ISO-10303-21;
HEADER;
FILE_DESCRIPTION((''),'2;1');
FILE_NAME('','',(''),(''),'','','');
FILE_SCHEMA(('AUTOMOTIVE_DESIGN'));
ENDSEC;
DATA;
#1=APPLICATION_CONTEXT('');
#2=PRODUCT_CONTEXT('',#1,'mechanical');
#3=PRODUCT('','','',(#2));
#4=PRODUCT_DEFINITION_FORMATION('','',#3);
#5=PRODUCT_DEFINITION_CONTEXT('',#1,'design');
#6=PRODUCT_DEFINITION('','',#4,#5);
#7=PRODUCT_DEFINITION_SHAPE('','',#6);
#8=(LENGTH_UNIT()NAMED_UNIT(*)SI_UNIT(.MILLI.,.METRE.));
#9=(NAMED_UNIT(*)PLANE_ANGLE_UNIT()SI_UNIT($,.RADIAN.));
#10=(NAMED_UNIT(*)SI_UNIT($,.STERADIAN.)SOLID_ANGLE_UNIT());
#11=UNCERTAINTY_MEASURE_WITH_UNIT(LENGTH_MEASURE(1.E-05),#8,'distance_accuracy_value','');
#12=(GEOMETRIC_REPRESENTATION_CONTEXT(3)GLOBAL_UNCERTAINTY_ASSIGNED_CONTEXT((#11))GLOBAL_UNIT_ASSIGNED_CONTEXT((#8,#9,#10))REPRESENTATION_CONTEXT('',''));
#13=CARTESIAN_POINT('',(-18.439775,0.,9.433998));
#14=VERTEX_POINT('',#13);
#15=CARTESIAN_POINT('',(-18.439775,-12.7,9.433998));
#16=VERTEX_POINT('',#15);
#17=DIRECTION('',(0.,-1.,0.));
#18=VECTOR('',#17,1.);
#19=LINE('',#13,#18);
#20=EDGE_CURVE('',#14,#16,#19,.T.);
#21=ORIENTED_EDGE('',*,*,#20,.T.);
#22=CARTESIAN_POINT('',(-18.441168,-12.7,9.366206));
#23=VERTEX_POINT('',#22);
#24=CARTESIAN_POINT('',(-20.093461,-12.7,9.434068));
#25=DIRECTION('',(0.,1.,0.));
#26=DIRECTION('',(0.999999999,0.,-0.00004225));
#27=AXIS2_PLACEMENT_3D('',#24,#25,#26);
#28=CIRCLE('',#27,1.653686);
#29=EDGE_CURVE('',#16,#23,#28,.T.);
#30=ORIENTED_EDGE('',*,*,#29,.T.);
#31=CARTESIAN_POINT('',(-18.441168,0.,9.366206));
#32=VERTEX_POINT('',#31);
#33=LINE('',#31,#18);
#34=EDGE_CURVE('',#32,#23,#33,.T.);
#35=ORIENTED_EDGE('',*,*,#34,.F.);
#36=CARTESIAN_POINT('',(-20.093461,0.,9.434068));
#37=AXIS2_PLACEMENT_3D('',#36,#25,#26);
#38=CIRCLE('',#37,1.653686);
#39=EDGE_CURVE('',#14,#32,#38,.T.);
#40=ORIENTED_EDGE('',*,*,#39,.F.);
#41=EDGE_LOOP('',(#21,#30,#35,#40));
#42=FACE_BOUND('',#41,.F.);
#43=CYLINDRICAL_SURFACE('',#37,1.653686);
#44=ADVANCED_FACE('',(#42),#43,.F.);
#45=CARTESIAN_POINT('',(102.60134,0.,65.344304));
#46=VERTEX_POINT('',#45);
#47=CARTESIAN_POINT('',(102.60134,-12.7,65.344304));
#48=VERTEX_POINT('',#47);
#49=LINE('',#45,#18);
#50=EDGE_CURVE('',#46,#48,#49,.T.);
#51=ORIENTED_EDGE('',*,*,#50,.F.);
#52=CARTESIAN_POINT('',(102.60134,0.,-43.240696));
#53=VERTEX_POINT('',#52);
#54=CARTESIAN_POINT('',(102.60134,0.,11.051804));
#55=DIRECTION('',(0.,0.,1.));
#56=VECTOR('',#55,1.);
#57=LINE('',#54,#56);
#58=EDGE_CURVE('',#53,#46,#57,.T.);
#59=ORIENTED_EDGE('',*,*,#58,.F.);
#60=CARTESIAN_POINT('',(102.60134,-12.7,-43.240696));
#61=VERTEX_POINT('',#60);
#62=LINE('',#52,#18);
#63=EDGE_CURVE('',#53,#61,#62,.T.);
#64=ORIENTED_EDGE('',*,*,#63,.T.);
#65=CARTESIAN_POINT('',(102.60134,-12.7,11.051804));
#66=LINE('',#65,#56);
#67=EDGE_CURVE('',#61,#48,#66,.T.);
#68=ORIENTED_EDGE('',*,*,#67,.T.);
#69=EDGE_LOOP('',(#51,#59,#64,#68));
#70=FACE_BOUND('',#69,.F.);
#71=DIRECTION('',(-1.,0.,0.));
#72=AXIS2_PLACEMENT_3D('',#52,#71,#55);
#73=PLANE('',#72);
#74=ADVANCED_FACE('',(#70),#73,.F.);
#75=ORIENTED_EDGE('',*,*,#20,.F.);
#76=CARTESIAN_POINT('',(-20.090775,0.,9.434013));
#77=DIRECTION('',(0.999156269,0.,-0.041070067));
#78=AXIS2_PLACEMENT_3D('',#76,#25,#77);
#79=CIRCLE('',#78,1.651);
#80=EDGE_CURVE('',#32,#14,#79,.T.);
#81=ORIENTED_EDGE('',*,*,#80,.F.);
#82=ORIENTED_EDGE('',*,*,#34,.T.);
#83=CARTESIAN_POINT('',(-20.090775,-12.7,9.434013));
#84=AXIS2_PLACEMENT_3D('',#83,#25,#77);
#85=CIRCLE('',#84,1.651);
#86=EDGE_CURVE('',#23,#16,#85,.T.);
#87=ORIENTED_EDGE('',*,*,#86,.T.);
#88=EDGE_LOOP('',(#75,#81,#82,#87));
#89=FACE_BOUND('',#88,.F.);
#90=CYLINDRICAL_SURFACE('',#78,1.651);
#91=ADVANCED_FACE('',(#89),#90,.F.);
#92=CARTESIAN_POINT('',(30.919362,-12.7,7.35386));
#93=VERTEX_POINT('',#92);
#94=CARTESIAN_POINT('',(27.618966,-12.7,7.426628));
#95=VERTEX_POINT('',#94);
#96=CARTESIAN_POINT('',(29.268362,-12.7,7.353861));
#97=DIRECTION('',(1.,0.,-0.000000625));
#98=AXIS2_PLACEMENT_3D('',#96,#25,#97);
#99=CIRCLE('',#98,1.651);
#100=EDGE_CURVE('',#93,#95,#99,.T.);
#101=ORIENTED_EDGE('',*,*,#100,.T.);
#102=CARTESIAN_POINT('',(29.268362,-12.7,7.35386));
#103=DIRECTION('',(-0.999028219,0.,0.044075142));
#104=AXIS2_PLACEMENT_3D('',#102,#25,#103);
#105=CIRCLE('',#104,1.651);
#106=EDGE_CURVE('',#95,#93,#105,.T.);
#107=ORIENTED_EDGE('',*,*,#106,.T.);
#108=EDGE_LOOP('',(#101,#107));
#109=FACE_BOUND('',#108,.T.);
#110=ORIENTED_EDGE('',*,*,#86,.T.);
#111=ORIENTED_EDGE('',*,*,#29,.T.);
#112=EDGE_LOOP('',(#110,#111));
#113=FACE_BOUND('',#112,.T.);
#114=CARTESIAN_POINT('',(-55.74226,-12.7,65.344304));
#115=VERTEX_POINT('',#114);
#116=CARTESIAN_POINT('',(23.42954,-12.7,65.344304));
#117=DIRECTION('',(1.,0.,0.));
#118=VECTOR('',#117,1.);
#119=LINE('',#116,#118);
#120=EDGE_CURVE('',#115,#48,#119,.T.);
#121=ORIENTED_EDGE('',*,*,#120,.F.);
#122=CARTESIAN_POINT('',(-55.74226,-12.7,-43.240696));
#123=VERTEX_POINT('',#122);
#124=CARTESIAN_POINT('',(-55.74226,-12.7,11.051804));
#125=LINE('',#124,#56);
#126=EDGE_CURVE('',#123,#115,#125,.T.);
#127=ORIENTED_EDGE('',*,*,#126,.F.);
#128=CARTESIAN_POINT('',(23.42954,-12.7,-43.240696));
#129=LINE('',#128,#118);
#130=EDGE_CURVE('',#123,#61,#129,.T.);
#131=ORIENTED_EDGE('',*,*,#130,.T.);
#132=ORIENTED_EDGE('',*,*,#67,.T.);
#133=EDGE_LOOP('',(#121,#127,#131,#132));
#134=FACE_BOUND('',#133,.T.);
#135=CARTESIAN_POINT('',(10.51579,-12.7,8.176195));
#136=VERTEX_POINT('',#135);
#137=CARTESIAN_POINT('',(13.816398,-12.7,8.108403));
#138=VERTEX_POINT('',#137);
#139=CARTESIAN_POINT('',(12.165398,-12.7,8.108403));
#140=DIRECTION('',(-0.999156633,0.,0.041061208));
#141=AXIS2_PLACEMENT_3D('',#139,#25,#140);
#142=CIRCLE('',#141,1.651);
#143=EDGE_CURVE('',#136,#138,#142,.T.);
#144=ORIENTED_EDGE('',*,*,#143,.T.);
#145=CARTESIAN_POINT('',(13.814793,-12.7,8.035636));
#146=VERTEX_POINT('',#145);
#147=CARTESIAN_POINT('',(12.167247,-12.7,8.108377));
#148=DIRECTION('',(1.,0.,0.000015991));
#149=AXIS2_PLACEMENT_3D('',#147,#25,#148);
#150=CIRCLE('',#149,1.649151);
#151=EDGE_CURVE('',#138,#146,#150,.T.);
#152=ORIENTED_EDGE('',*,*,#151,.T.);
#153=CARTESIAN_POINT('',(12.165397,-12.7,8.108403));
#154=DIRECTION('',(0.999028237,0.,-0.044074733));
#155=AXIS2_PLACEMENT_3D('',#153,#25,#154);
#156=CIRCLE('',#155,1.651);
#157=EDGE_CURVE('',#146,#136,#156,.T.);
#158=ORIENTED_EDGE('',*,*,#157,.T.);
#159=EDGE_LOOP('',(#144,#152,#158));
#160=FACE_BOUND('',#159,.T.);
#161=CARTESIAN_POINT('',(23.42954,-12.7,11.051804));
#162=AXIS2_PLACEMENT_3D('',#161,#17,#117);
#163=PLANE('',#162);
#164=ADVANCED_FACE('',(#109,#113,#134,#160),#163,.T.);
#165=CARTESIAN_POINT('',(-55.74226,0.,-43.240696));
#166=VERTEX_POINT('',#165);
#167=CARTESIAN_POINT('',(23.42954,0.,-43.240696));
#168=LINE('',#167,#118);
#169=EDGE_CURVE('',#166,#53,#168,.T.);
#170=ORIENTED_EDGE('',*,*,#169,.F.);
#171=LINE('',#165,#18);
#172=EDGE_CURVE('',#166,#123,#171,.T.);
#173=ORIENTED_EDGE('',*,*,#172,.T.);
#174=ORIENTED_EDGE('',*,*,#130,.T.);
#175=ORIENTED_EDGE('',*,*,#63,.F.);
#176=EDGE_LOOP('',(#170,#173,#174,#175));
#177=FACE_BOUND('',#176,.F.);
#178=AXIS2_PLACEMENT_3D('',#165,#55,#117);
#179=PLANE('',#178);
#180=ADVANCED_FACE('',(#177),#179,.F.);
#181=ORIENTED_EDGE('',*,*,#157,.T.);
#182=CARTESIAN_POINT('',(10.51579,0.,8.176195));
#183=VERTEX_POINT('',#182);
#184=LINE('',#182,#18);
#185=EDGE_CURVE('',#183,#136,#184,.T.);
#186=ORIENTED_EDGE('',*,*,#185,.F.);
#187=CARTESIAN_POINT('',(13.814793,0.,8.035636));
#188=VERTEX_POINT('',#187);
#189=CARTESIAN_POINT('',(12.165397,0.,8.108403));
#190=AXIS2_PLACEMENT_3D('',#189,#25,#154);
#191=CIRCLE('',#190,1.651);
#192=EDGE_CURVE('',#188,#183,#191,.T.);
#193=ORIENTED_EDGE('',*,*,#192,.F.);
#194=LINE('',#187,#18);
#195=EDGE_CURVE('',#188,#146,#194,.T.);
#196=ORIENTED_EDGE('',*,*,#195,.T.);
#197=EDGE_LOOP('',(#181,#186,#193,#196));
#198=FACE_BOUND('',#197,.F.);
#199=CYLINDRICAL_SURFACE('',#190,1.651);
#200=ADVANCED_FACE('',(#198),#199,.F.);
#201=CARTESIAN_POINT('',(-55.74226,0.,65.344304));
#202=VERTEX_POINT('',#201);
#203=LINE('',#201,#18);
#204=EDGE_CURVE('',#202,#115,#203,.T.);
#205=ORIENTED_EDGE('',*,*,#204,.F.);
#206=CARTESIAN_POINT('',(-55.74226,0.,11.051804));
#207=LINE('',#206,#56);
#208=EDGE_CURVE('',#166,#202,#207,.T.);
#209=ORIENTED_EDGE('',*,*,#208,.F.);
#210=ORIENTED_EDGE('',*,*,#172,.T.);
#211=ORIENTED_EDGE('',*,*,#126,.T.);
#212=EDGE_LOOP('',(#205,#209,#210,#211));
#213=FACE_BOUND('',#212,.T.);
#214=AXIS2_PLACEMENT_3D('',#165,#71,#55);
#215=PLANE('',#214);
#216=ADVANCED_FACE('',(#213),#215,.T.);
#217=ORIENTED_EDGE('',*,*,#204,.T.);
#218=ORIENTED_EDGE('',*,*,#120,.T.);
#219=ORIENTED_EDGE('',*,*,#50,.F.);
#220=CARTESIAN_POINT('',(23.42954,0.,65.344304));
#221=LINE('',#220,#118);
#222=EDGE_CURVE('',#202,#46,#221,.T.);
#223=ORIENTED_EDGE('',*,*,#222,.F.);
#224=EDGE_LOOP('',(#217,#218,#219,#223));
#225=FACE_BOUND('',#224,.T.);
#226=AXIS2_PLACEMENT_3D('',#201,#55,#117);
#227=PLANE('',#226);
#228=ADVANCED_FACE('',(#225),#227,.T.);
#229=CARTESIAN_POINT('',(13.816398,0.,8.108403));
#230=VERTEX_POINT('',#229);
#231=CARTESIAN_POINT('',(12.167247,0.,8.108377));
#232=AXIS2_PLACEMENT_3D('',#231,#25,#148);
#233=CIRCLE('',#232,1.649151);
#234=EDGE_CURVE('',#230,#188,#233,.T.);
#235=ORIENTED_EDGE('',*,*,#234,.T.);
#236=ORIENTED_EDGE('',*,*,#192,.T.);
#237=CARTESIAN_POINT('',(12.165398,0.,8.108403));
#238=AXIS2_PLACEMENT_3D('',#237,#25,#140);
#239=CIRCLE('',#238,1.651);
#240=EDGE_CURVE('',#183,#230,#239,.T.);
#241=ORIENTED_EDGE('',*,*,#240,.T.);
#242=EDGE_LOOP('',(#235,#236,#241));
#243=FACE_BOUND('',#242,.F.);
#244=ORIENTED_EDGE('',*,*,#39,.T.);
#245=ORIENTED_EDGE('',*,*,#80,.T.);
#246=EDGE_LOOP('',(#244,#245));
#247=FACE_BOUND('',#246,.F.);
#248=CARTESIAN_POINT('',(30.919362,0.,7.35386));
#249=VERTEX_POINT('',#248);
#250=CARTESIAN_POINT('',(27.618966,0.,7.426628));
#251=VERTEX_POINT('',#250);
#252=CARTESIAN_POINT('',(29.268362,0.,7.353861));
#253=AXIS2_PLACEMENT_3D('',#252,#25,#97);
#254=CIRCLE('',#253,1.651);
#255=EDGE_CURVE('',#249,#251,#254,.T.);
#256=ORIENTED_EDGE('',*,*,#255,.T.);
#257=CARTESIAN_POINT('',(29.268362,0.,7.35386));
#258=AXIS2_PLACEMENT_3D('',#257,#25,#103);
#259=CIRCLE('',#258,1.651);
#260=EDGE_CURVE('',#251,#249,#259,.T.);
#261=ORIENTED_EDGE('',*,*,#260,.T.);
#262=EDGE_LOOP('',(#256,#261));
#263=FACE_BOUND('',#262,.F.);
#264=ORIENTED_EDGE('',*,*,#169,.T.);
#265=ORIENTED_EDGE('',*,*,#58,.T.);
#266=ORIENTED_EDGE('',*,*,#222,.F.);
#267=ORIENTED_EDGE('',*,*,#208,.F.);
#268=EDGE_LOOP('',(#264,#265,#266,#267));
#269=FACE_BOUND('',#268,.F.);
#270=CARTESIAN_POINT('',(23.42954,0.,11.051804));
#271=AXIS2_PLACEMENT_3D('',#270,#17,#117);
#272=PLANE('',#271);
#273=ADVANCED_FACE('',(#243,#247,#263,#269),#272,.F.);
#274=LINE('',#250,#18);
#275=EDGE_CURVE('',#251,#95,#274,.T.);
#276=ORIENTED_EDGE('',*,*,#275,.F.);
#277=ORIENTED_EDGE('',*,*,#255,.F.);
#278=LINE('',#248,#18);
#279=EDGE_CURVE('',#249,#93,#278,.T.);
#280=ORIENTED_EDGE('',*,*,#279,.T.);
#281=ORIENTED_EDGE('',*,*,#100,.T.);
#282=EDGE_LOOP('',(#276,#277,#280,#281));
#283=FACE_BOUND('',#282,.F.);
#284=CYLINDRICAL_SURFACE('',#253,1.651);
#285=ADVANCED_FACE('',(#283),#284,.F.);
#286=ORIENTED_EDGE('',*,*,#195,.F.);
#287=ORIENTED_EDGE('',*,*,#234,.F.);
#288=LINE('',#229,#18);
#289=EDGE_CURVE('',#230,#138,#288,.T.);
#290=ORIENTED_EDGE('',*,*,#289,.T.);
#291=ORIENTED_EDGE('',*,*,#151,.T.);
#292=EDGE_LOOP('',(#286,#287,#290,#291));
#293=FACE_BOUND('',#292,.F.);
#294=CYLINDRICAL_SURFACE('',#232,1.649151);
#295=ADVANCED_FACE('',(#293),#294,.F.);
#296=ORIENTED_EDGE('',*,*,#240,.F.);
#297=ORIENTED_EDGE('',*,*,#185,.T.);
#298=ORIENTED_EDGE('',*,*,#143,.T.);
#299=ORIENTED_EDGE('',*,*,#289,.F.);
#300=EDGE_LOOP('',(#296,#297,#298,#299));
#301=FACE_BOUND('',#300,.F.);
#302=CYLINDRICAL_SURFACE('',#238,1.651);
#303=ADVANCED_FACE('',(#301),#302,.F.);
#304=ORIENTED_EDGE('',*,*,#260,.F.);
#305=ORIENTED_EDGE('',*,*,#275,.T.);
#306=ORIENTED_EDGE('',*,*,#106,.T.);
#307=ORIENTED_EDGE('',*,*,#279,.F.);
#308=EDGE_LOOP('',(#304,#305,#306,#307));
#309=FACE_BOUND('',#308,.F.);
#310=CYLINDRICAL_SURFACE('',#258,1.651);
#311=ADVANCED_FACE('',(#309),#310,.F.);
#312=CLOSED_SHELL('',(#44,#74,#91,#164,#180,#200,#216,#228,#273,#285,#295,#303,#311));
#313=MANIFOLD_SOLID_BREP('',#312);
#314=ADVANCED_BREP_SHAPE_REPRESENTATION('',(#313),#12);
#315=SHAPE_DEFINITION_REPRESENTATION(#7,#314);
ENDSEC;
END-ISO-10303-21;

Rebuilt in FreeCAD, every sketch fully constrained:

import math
import FreeCAD as App
import Part
import Sketcher

V = App.Vector
Q = App.Units.Quantity

doc = App.newDocument("Part")
body = doc.addObject("PartDesign::Body", "Body")

sketch1 = doc.addObject("Sketcher::SketchObject", "Sketch")
body.addObject(sketch1)
sketch1.AttachmentSupport = (doc.XZ_Plane, [""])
sketch1.MapMode = "FlatFace"
sketch1.addGeometry(Part.LineSegment(V(-55.74226, 65.344304, 0), V(-55.74226, -43.240696, 0)), False)
sketch1.addGeometry(Part.LineSegment(V(-55.74226, -43.240696, 0), V(102.60134, -43.240696, 0)), False)
sketch1.addGeometry(Part.LineSegment(V(102.60134, -43.240696, 0), V(102.60134, 65.344304, 0)), False)
sketch1.addGeometry(Part.LineSegment(V(102.60134, 65.344304, 0), V(-55.74226, 65.344304, 0)), False)
sketch1.addGeometry(Part.ArcOfCircle(Part.Circle(V(12.167247, 8.108377, 0), V(0, 0, 1), 1.649151), math.radians(-2.528018), math.radians(0.000916)), False)
sketch1.addGeometry(Part.ArcOfCircle(Part.Circle(V(12.165397, 8.108403, 0), V(0, 0, 1), 1.651), math.radians(177.646719), math.radians(357.473885)), False)
sketch1.addGeometry(Part.ArcOfCircle(Part.Circle(V(12.165398, 8.108403, 0), V(0, 0, 1), 1.651), math.radians(0.000002), math.radians(177.646704)), False)
sketch1.addGeometry(Part.ArcOfCircle(Part.Circle(V(29.268362, 7.35386, 0), V(0, 0, 1), 1.651), math.radians(0.000002), math.radians(177.473862)), False)
sketch1.addGeometry(Part.ArcOfCircle(Part.Circle(V(29.268362, 7.353861, 0), V(0, 0, 1), 1.651), math.radians(177.4739), math.radians(359.999964)), False)
sketch1.addGeometry(Part.ArcOfCircle(Part.Circle(V(-20.093461, 9.434068, 0), V(0, 0, 1), 1.653686), math.radians(-2.351892), math.radians(-0.002421)), False)
sketch1.addGeometry(Part.ArcOfCircle(Part.Circle(V(-20.090775, 9.434013, 0), V(0, 0, 1), 1.651), math.radians(-0.000509), math.radians(357.646196)), False)
sketch1.addConstraint(Sketcher.Constraint("Coincident", 0, 2, 1, 1))
sketch1.addConstraint(Sketcher.Constraint("Coincident", 1, 2, 2, 1))
sketch1.addConstraint(Sketcher.Constraint("Coincident", 2, 2, 3, 1))
sketch1.addConstraint(Sketcher.Constraint("Coincident", 3, 2, 0, 1))
sketch1.addConstraint(Sketcher.Constraint("Coincident", 4, 1, 5, 2))
sketch1.addConstraint(Sketcher.Constraint("Tangent", 5, 1, 6, 2))
sketch1.addConstraint(Sketcher.Constraint("Coincident", 6, 1, 4, 2))
sketch1.addConstraint(Sketcher.Constraint("Tangent", 7, 1, 8, 2))
sketch1.addConstraint(Sketcher.Constraint("Coincident", 8, 1, 7, 2))
sketch1.addConstraint(Sketcher.Constraint("Coincident", 9, 1, 10, 2))
sketch1.addConstraint(Sketcher.Constraint("Coincident", 10, 1, 9, 2))
sketch1.addConstraint(Sketcher.Constraint("Vertical", 0))
sketch1.addConstraint(Sketcher.Constraint("Horizontal", 1))
sketch1.addConstraint(Sketcher.Constraint("Vertical", 2))
sketch1.addConstraint(Sketcher.Constraint("Horizontal", 3))
sketch1.addConstraint(Sketcher.Constraint("Equal", 5, 6))
sketch1.addConstraint(Sketcher.Constraint("Equal", 6, 7))
sketch1.addConstraint(Sketcher.Constraint("Equal", 8, 10))
sketch1.addConstraint(Sketcher.Constraint("Horizontal", 5, 3, 6, 1))
sketch1.addConstraint(Sketcher.Constraint("Horizontal", 8, 3, 7, 1))
sketch1.addConstraint(Sketcher.Constraint("Radius", 5, Q("0.065 in")))
sketch1.addConstraint(Sketcher.Constraint("DistanceX", 1, 1, 1, 2, Q("6.234 in")))
sketch1.addConstraint(Sketcher.Constraint("DistanceY", 0, 2, 0, 1, Q("4.275 in")))
sketch1.addConstraint(Sketcher.Constraint("Radius", 4, Q("1.649151 mm")))
sketch1.addConstraint(Sketcher.Constraint("Radius", 9, Q("1.653686 mm")))
sketch1.addConstraint(Sketcher.Constraint("DistanceY", -1, 1, 10, 1, Q("9.433998 mm")))
sketch1.addConstraint(Sketcher.Constraint("DistanceX", 0, 2, 9, 3, Q("35.648799 mm")))
sketch1.addConstraint(Sketcher.Constraint("DistanceY", 0, 2, 6, 3, Q("51.349099 mm")))
sketch1.addConstraint(Sketcher.Constraint("DistanceX", -1, 1, 7, 3, Q("29.268362 mm")))
sketch1.addConstraint(Sketcher.Constraint("DistanceY", -1, 1, 7, 3, Q("7.35386 mm")))
sketch1.addConstraint(Sketcher.Constraint("DistanceX", 9, 3, -1, 1, Q("20.093461 mm")))
sketch1.addConstraint(Sketcher.Constraint("DistanceX", -1, 1, 5, 1, Q("10.51579 mm")))
sketch1.addConstraint(Sketcher.Constraint("DistanceX", 9, 1, -1, 1, Q("18.441168 mm")))
sketch1.addConstraint(Sketcher.Constraint("DistanceY", 8, 3, 6, 3, Q("0.754542 mm")))
sketch1.addConstraint(Sketcher.Constraint("DistanceX", 9, 3, 5, 3, Q("32.258858 mm")))
sketch1.addConstraint(Sketcher.Constraint("DistanceY", 4, 3, 9, 3, Q("1.325691 mm")))
sketch1.addConstraint(Sketcher.Constraint("DistanceY", 4, 1, 4, 3, Q("0.072741 mm")))
sketch1.addConstraint(Sketcher.Constraint("DistanceY", 7, 3, 8, 1, Q("0.072768 mm")))
pad1 = doc.addObject("PartDesign::Pad", "Pad")
body.addObject(pad1)
pad1.Profile = sketch1
pad1.Length = Q("0.5 in")

doc.recompute()
